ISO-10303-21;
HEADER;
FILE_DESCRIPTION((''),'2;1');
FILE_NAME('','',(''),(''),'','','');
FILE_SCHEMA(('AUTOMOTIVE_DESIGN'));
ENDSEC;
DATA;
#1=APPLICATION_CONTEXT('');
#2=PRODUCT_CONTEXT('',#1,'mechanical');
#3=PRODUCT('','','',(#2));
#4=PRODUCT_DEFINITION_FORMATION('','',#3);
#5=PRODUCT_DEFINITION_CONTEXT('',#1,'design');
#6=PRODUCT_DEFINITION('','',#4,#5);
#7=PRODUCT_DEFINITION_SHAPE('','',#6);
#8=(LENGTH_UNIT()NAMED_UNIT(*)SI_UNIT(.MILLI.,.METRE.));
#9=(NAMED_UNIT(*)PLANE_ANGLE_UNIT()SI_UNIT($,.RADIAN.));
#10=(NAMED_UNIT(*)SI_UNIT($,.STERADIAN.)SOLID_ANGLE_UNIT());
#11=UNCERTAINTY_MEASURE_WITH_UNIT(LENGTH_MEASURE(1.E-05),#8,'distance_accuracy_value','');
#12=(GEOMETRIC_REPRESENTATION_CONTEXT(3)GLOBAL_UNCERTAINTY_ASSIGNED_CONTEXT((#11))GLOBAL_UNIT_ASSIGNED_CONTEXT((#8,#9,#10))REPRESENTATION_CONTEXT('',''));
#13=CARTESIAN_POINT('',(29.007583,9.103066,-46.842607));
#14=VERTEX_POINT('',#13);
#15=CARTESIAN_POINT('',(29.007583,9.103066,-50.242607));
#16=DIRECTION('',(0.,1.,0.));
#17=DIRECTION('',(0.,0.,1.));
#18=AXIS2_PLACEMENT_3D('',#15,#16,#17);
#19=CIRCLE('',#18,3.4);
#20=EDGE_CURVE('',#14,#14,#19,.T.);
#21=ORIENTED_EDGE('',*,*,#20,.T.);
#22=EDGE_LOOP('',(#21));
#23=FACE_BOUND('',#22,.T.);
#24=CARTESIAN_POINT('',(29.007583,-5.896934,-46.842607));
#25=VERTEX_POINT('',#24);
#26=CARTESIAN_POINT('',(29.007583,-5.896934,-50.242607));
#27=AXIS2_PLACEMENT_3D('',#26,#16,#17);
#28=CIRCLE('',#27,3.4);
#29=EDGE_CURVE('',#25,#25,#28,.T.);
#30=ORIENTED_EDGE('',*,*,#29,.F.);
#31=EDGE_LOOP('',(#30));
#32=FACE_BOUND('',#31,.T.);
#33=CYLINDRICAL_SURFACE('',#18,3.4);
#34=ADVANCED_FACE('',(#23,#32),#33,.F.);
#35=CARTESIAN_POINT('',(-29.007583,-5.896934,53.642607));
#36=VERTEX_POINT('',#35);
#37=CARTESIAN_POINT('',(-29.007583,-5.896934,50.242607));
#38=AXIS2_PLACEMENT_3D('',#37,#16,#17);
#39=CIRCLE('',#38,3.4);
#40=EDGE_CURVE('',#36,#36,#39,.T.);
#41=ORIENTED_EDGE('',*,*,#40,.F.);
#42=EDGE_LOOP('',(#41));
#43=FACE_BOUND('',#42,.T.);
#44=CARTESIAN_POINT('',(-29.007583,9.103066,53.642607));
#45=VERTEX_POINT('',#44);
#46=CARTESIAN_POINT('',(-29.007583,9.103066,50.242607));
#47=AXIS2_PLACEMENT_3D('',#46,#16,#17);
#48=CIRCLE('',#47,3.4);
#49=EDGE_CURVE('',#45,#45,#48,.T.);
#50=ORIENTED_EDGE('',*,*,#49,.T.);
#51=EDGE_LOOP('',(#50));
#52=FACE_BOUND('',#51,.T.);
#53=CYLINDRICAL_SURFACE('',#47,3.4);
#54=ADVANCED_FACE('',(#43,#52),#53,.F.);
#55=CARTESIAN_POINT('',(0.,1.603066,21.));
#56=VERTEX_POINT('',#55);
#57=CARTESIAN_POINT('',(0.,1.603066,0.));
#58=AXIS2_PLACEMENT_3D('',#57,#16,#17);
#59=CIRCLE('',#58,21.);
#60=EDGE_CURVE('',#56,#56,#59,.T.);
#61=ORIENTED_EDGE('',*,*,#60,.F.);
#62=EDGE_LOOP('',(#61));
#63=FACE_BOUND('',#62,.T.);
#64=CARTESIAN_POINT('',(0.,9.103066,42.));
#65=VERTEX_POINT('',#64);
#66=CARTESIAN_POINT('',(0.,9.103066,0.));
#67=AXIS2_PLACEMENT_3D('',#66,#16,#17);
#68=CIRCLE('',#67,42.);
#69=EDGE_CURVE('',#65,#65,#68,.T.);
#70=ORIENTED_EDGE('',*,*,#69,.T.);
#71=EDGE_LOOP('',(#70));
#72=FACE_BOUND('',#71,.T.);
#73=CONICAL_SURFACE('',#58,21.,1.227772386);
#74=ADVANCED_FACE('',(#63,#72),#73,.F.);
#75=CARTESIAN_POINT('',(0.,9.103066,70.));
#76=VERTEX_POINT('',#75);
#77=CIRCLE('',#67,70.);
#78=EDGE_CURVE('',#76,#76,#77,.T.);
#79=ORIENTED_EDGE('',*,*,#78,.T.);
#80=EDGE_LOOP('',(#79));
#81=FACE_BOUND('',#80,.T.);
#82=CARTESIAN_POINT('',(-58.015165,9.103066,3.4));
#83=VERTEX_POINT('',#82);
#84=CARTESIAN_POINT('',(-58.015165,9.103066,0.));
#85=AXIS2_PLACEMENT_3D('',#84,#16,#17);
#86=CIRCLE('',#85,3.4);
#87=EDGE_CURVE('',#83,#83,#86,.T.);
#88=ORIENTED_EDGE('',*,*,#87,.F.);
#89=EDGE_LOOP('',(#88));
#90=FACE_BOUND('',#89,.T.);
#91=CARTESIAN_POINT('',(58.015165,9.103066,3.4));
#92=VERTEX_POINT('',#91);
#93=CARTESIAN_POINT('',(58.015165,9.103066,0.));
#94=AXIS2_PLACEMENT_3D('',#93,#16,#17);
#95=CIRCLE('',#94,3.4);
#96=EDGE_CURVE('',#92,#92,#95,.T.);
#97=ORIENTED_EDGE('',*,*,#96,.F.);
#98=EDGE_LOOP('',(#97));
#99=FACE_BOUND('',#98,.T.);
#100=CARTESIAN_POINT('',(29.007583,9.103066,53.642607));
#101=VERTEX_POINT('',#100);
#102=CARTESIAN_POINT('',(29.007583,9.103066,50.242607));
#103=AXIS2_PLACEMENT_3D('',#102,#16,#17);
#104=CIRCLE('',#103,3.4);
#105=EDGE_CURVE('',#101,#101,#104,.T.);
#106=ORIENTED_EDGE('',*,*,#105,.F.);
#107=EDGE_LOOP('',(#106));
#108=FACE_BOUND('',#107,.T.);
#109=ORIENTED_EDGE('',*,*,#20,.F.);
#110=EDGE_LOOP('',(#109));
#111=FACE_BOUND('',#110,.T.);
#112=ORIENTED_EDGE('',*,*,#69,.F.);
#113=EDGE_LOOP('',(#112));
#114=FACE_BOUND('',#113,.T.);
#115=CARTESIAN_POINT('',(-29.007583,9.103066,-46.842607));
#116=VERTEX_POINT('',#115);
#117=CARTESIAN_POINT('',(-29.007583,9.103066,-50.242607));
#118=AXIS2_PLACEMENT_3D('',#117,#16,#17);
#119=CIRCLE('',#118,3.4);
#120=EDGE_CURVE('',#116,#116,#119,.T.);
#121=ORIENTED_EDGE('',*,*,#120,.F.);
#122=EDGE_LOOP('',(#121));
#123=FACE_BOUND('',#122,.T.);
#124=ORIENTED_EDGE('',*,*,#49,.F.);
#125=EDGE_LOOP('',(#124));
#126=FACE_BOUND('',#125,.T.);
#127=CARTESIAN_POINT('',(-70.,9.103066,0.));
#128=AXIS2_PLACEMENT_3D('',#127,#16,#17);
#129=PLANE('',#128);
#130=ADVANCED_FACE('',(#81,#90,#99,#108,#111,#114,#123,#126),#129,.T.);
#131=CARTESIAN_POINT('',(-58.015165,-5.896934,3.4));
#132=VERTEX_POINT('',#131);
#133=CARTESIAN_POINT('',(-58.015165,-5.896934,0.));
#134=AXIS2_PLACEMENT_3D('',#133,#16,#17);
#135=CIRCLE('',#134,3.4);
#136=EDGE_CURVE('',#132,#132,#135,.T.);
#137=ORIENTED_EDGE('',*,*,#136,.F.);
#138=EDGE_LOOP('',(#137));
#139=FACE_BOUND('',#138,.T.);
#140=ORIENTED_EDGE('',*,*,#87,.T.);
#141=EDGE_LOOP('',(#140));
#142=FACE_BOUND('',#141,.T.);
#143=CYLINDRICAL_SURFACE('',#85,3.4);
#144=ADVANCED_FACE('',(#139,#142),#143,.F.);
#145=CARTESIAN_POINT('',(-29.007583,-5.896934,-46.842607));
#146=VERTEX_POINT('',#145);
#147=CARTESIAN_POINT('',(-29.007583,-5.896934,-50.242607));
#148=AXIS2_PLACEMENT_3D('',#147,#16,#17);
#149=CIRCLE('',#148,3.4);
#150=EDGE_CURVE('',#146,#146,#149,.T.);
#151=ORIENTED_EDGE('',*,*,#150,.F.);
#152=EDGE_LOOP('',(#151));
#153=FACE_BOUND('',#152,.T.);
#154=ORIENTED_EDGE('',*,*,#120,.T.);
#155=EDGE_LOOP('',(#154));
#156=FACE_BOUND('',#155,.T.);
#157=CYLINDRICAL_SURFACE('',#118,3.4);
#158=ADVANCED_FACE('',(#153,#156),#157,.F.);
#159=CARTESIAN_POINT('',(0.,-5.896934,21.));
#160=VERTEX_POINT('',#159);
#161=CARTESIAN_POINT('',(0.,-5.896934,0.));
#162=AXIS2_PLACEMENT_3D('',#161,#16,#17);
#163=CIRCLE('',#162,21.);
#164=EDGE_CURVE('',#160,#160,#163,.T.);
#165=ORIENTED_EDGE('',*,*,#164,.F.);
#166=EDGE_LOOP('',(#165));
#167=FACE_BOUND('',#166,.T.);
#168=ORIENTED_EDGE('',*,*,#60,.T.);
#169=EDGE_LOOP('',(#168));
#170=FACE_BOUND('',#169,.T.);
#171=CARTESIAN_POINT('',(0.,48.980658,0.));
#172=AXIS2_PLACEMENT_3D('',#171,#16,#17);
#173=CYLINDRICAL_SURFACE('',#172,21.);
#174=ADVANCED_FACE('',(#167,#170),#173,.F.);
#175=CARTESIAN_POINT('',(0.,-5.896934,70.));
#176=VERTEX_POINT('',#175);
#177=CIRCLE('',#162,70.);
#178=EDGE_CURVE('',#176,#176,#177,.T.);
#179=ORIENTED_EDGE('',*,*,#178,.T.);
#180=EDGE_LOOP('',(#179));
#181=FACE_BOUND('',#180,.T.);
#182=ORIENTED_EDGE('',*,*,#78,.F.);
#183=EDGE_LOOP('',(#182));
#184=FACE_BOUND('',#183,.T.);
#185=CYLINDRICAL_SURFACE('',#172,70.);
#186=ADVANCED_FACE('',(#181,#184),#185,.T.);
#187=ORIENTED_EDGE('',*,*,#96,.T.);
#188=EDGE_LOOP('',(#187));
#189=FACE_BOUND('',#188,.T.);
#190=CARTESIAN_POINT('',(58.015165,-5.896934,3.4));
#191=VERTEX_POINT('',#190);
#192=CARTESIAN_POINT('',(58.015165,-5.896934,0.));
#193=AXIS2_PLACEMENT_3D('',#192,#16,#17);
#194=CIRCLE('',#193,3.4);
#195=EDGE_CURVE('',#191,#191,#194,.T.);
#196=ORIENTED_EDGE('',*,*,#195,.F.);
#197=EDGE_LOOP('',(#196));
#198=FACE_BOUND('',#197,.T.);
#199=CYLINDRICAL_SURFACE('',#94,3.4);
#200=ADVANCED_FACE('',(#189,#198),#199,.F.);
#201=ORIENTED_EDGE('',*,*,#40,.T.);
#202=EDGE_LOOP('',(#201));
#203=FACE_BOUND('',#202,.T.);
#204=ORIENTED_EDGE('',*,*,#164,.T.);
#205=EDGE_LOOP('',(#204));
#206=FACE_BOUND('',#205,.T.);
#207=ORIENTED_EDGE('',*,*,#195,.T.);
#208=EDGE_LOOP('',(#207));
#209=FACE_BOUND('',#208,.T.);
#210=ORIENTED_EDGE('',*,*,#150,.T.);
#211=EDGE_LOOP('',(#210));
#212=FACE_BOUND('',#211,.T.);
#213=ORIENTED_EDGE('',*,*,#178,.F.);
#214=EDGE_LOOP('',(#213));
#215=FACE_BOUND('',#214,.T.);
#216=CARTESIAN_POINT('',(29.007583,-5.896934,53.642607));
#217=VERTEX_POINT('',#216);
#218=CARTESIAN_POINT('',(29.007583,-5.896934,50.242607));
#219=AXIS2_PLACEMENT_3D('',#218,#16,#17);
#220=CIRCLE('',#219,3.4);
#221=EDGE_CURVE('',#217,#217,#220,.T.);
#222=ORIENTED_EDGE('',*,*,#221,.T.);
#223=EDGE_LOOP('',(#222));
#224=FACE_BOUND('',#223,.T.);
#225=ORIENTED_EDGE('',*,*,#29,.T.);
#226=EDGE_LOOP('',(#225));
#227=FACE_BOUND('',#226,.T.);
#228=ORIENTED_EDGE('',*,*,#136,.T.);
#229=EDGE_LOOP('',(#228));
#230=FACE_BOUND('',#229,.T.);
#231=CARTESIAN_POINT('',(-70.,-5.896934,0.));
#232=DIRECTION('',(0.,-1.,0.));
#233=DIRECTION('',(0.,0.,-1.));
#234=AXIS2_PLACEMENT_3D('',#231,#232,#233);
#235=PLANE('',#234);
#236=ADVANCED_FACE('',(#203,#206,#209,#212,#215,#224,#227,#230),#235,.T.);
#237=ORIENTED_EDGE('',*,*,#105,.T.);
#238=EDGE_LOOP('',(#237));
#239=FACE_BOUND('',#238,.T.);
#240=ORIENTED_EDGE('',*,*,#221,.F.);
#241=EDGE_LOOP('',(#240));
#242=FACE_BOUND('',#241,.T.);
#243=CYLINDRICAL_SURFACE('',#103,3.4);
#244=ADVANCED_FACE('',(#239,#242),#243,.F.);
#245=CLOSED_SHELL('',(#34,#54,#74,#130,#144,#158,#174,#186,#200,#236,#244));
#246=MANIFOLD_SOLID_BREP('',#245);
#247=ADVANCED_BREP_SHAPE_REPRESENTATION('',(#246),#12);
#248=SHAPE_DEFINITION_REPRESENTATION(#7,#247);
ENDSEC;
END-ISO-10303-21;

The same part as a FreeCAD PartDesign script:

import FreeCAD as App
import Part
import Sketcher

V = App.Vector
Q = App.Units.Quantity


def add_polygon(sketch, points):
    """Adds a closed chain of lines whose ends are joined by coincident constraints."""
    first, n = sketch.GeometryCount, len(points)
    for a, b in zip(points, points[1:] + points[:1]):
        sketch.addGeometry(Part.LineSegment(App.Vector(*a, 0), App.Vector(*b, 0)), False)
    for i in range(n):
        sketch.addConstraint(Sketcher.Constraint("Coincident", first + i, 2, first + (i + 1) % n, 1))

doc = App.newDocument("Part")
params = doc.addObject("Spreadsheet::Sheet", "Params")
for row, (alias, value) in enumerate([
    ("sketch1_width", "49 mm"),
    ("sketch1_width2", "28 mm"),
    ("sketch1_height", "15 mm"),
    ("sketch1_height2", "7.5 mm"),
    ("revolution_angle", "360 deg"),
    ("sketch2_diameter", "6.8 mm"),
    ("hole_diameter", "6.8 mm"),
], start=1):
    params.set(f"A{row}", alias)
    params.set(f"B{row}", "=" + value)
    params.setAlias(f"B{row}", alias)

body = doc.addObject("PartDesign::Body", "Body")

sketch1 = body.newObject("Sketcher::SketchObject", "Sketch")
sketch1.AttachmentSupport = (doc.getObject("XY_Plane"), [""])
sketch1.MapMode = "FlatFace"
add_polygon(sketch1, [(-70, 9), (-70, -6), (-21, -6), (-21, 2), (-42, 9)])
sketch1.addConstraint(Sketcher.Constraint("Vertical", 0))
sketch1.addConstraint(Sketcher.Constraint("Horizontal", 1))
sketch1.addConstraint(Sketcher.Constraint("Vertical", 2))
sketch1.addConstraint(Sketcher.Constraint("Horizontal", 4))
sketch1.addConstraint(Sketcher.Constraint("DistanceX", 1, 1, 1, 2, Q("49 mm")))
sketch1.addConstraint(Sketcher.Constraint("DistanceX", 4, 2, 4, 1, Q("28 mm")))
sketch1.addConstraint(Sketcher.Constraint("DistanceY", 0, 2, 0, 1, Q("15 mm")))
sketch1.addConstraint(Sketcher.Constraint("DistanceY", 2, 1, 2, 2, Q("7.5 mm")))
sketch1.addConstraint(Sketcher.Constraint("DistanceX", 0, 2, -1, 1, Q("70 mm")))
sketch1.addConstraint(Sketcher.Constraint("DistanceY", 0, 2, -1, 1, Q("5.896934 mm")))
sketch1.setExpression("Constraints[9]", "Params.sketch1_width")
sketch1.setExpression("Constraints[10]", "Params.sketch1_width2")
sketch1.setExpression("Constraints[11]", "Params.sketch1_height")
sketch1.setExpression("Constraints[12]", "Params.sketch1_height2")
revolution = body.newObject("PartDesign::Revolution", "Revolution")
revolution.Profile = sketch1
revolution.ReferenceAxis = (sketch1, ["V_Axis"])
revolution.setExpression("Angle", "Params.revolution_angle")

sketch2 = body.newObject("Sketcher::SketchObject", "Sketch001")
sketch2.AttachmentSupport = (doc.getObject("XZ_Plane"), [""])
sketch2.MapMode = "FlatFace"
sketch2.AttachmentOffset = App.Placement(V(0, 0, -9.103066), App.Rotation())
sketch2.addGeometry(Part.Circle(V(-58, 0, 0), V(0, 0, 1), 3.4), False)
sketch2.addGeometry(Part.Circle(V(-29, -50.2, 0), V(0, 0, 1), 3.4), False)
sketch2.addGeometry(Part.Circle(V(29, -50.2, 0), V(0, 0, 1), 3.4), False)
sketch2.addGeometry(Part.Circle(V(58, 0, 0), V(0, 0, 1), 3.4), False)
sketch2.addGeometry(Part.Circle(V(29, 50.2, 0), V(0, 0, 1), 3.4), False)
sketch2.addGeometry(Part.Circle(V(-29, 50.2, 0), V(0, 0, 1), 3.4), False)
sketch2.addConstraint(Sketcher.Constraint("Equal", 0, 1))
sketch2.addConstraint(Sketcher.Constraint("Equal", 1, 2))
sketch2.addConstraint(Sketcher.Constraint("Equal", 2, 3))
sketch2.addConstraint(Sketcher.Constraint("Equal", 3, 4))
sketch2.addConstraint(Sketcher.Constraint("Equal", 4, 5))
sketch2.addConstraint(Sketcher.Constraint("Symmetric", 0, 3, 3, 3, -1, 1))
sketch2.addConstraint(Sketcher.Constraint("Symmetric", 1, 3, 4, 3, -1, 1))
sketch2.addConstraint(Sketcher.Constraint("Symmetric", 2, 3, 5, 3, -1, 1))
sketch2.addConstraint(Sketcher.Constraint("Symmetric", 1, 3, 2, 3, -2))
sketch2.addConstraint(Sketcher.Constraint("PointOnObject", 0, 3, -1))
sketch2.addConstraint(Sketcher.Constraint("Diameter", 0, Q("6.8 mm")))
sketch2.addConstraint(Sketcher.Constraint("DistanceX", 0, 3, 3, 3, Q("116.03033 mm")))
sketch2.addConstraint(Sketcher.Constraint("DistanceX", 1, 3, -1, 1, Q("29.007583 mm")))
sketch2.addConstraint(Sketcher.Constraint("DistanceY", 1, 3, -1, 1, Q("50.242607 mm")))
sketch2.setExpression("Constraints[10]", "Params.sketch2_diameter")
doc.recompute()
hole = body.newObject("PartDesign::Hole", "Hole")
hole.Profile = sketch2
hole.ThreadType = "None"
hole.setExpression("Diameter", "Params.hole_diameter")
hole.DepthType = "ThroughAll"
hole.Reversed = True

doc.recompute()
